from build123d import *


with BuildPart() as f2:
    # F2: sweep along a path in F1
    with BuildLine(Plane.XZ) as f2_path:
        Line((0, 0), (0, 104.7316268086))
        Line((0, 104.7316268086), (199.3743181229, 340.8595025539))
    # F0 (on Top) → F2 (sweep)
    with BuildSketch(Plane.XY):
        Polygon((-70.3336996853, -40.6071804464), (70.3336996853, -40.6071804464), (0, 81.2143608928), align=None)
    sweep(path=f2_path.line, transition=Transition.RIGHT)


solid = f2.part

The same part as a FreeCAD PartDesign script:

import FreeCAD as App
import Part
import Sketcher
Q = App.Units.Quantity

doc = App.newDocument("Part")
body = doc.addObject("PartDesign::Body", "Body")

# Sketch on XY plane
sketch1 = body.newObject("Sketcher::SketchObject", "Sketch")
sketch1.AttachmentSupport = (doc.getObject("XY_Plane"), [""])
sketch1.MapMode = "FlatFace"
sketch1.addGeometry([
    Part.LineSegment(App.Vector(-70, -41, 0), App.Vector(70, -41, 0)),
    Part.LineSegment(App.Vector(70, -41, 0), App.Vector(0, 81, 0)),
    Part.LineSegment(App.Vector(0, 81, 0), App.Vector(-70, -41, 0)),
], False)
sketch1.addConstraint([
    Sketcher.Constraint("Coincident", 0, 2, 1, 1),
    Sketcher.Constraint("Coincident", 1, 2, 2, 1),
    Sketcher.Constraint("Coincident", 2, 2, 0, 1),
    Sketcher.Constraint("Horizontal", 0),
    Sketcher.Constraint("PointOnObject", 1, 2, -2),
    Sketcher.Constraint("Equal", 1, 2),
    Sketcher.Constraint("Angle", 1, Q("120 deg")),
    Sketcher.Constraint("DistanceX", 0, 1, 0, 2, Q("140.667399 mm")),
    Sketcher.Constraint("DistanceY", 0, 2, -1, 1, Q("40.60718 mm")),
])

# Sketch on XZ plane
sketch2 = body.newObject("Sketcher::SketchObject", "Sketch001")
sketch2.AttachmentSupport = (doc.getObject("XZ_Plane"), [""])
sketch2.MapMode = "FlatFace"
sketch2.addGeometry([
    Part.LineSegment(App.Vector(0, 0, 0), App.Vector(0, 105, 0)),
    Part.LineSegment(App.Vector(0, 105, 0), App.Vector(199, 341, 0)),
], False)
sketch2.addConstraint([
    Sketcher.Constraint("Coincident", 0, 2, 1, 1),
    Sketcher.Constraint("Vertical", 0),
    Sketcher.Constraint("Coincident", 0, 1, -1, 1),
    Sketcher.Constraint("DistanceY", 0, 1, 0, 2, Q("104.731627 mm")),
    Sketcher.Constraint("DistanceX", -1, 1, 1, 2, Q("199.374318 mm")),
    Sketcher.Constraint("Distance", 1, Q("309.041247 mm")),
])
doc.recompute()

additivepipe = body.newObject("PartDesign::AdditivePipe", "AdditivePipe")
additivepipe.Profile = sketch1
additivepipe.Spine = (sketch2, ["Edge1", "Edge2"])
additivepipe.Transition = "Right corner"

doc.recompute()
